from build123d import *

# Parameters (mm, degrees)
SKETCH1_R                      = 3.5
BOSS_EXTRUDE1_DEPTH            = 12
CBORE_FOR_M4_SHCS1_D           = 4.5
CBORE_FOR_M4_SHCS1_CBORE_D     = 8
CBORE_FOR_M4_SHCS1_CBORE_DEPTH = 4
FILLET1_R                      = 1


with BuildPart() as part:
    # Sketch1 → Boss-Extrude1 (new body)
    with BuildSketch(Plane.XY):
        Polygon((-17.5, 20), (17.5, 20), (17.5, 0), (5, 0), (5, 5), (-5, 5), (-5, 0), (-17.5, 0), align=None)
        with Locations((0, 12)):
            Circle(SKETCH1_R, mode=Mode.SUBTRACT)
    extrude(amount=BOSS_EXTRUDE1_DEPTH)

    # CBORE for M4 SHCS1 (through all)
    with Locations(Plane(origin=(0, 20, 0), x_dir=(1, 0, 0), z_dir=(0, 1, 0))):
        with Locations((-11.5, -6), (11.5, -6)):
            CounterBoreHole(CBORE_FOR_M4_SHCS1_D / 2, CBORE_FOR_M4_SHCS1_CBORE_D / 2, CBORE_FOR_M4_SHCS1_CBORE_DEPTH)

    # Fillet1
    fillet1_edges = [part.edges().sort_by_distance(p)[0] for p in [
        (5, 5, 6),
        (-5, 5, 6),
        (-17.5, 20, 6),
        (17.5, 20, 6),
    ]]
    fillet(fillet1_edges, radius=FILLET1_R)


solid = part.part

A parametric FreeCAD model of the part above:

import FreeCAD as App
import Part
import Sketcher

V = App.Vector
Q = App.Units.Quantity


def edges_at(feature, points):
    """Names of the edges that pass closest to the given points."""
    edges = feature.Shape.Edges
    near = lambda p: min(range(len(edges)), key=lambda i: edges[i].distToShape(Part.Vertex(*p))[0])
    return sorted({f"Edge{near(p) + 1}" for p in points})

doc = App.newDocument("Part")
params = doc.addObject("Spreadsheet::Sheet", "Params")
for row, (alias, value) in enumerate([
    ("sketch1_diameter", "7 mm"),
    ("sketch1_width", "35 mm"),
    ("sketch1_width2", "10 mm"),
    ("sketch1_height", "20 mm"),
    ("sketch1_height2", "5 mm"),
    ("pad1_length", "12 mm"),
    ("sketch2_diameter", "4.5 mm"),
    ("hole_diameter", "4.5 mm"),
    ("hole_cbore_diameter", "8 mm"),
    ("hole_cbore_depth", "4 mm"),
    ("fillet_radius", "1 mm"),
], start=1):
    params.set(f"A{row}", alias)
    params.set(f"B{row}", "=" + value)
    params.setAlias(f"B{row}", alias)

body = doc.addObject("PartDesign::Body", "Body")

sketch1 = doc.addObject("Sketcher::SketchObject", "Sketch")
body.addObject(sketch1)
sketch1.AttachmentSupport = (doc.XY_Plane, [""])
sketch1.MapMode = "FlatFace"
sketch1.addGeometry(Part.LineSegment(V(17.5, 20, 0), V(-17.5, 20, 0)), False)
sketch1.addGeometry(Part.LineSegment(V(-17.5, 20, 0), V(-17.5, 0, 0)), False)
sketch1.addGeometry(Part.LineSegment(V(-17.5, 0, 0), V(-5, 0, 0)), False)
sketch1.addGeometry(Part.LineSegment(V(-5, 0, 0), V(-5, 5, 0)), False)
sketch1.addGeometry(Part.LineSegment(V(-5, 5, 0), V(5, 5, 0)), False)
sketch1.addGeometry(Part.LineSegment(V(5, 5, 0), V(5, 0, 0)), False)
sketch1.addGeometry(Part.LineSegment(V(5, 0, 0), V(17.5, 0, 0)), False)
sketch1.addGeometry(Part.LineSegment(V(17.5, 0, 0), V(17.5, 20, 0)), False)
sketch1.addGeometry(Part.Circle(V(0, 12, 0), V(0, 0, 1), 3.5), False)
sketch1.addConstraint(Sketcher.Constraint("Coincident", 0, 2, 1, 1))
sketch1.addConstraint(Sketcher.Constraint("Coincident", 1, 2, 2, 1))
sketch1.addConstraint(Sketcher.Constraint("Coincident", 2, 2, 3, 1))
sketch1.addConstraint(Sketcher.Constraint("Coincident", 3, 2, 4, 1))
sketch1.addConstraint(Sketcher.Constraint("Coincident", 4, 2, 5, 1))
sketch1.addConstraint(Sketcher.Constraint("Coincident", 5, 2, 6, 1))
sketch1.addConstraint(Sketcher.Constraint("Coincident", 6, 2, 7, 1))
sketch1.addConstraint(Sketcher.Constraint("Coincident", 7, 2, 0, 1))
sketch1.addConstraint(Sketcher.Constraint("Horizontal", 0))
sketch1.addConstraint(Sketcher.Constraint("Vertical", 1))
sketch1.addConstraint(Sketcher.Constraint("Horizontal", 2))
sketch1.addConstraint(Sketcher.Constraint("Vertical", 3))
sketch1.addConstraint(Sketcher.Constraint("Horizontal", 4))
sketch1.addConstraint(Sketcher.Constraint("Vertical", 5))
sketch1.addConstraint(Sketcher.Constraint("Horizontal", 6))
sketch1.addConstraint(Sketcher.Constraint("Vertical", 7))
sketch1.addConstraint(Sketcher.Constraint("Symmetric", 2, 2, 5, 2, -1, 1))
sketch1.addConstraint(Sketcher.Constraint("Symmetric", 1, 2, 6, 2, -2))
sketch1.addConstraint(Sketcher.Constraint("PointOnObject", 8, 3, -2))
sketch1.addConstraint(Sketcher.Constraint("Diameter", 8, Q("7 mm")))
sketch1.addConstraint(Sketcher.Constraint("DistanceX", 0, 2, 0, 1, Q("35 mm")))
sketch1.addConstraint(Sketcher.Constraint("DistanceX", 4, 1, 4, 2, Q("10 mm")))
sketch1.addConstraint(Sketcher.Constraint("DistanceY", 1, 2, 1, 1, Q("20 mm")))
sketch1.addConstraint(Sketcher.Constraint("DistanceY", 3, 1, 3, 2, Q("5 mm")))
sketch1.addConstraint(Sketcher.Constraint("DistanceY", -1, 1, 8, 3, Q("12 mm")))
sketch1.setExpression("Constraints[19]", "Params.sketch1_diameter")
sketch1.setExpression("Constraints[20]", "Params.sketch1_width")
sketch1.setExpression("Constraints[21]", "Params.sketch1_width2")
sketch1.setExpression("Constraints[22]", "Params.sketch1_height")
sketch1.setExpression("Constraints[23]", "Params.sketch1_height2")
pad1 = doc.addObject("PartDesign::Pad", "Pad")
body.addObject(pad1)
pad1.Profile = sketch1
pad1.setExpression("Length", "Params.pad1_length")

sketch2 = doc.addObject("Sketcher::SketchObject", "Sketch001")
body.addObject(sketch2)
sketch2.AttachmentSupport = (doc.XZ_Plane, [""])
sketch2.MapMode = "FlatFace"
sketch2.AttachmentOffset = App.Placement(V(0, 0, -20), App.Rotation())
sketch2.addGeometry(Part.Circle(V(-11.5, 6, 0), V(0, 0, 1), 2.2), False)
sketch2.addGeometry(Part.Circle(V(11.5, 6, 0), V(0, 0, 1), 2.2), False)
sketch2.addConstraint(Sketcher.Constraint("Equal", 0, 1))
sketch2.addConstraint(Sketcher.Constraint("Symmetric", 0, 3, 1, 3, -2))
sketch2.addConstraint(Sketcher.Constraint("Diameter", 0, Q("4.5 mm")))
sketch2.addConstraint(Sketcher.Constraint("DistanceY", -1, 1, 0, 3, Q("6 mm")))
sketch2.addConstraint(Sketcher.Constraint("DistanceX", 0, 3, 1, 3, Q("23 mm")))
sketch2.setExpression("Constraints[2]", "Params.sketch2_diameter")
doc.recompute()
hole = doc.addObject("PartDesign::Hole", "Hole")
body.addObject(hole)
hole.Profile = sketch2
hole.ThreadType = "None"
hole.setExpression("Diameter", "Params.hole_diameter")
hole.DepthType = "ThroughAll"
hole.HoleCutType = "Counterbore"
hole.setExpression("HoleCutDiameter", "Params.hole_cbore_diameter")
hole.setExpression("HoleCutDepth", "Params.hole_cbore_depth")
hole.Reversed = True
doc.recompute()

fillet = doc.addObject("PartDesign::Fillet", "Fillet")
body.addObject(fillet)
fillet.Base = (hole, edges_at(hole, [
    (5, 5, 6),
    (-5, 5, 6),
    (-17.5, 20, 6),
    (17.5, 20, 6),
]))
fillet.setExpression("Radius", "Params.fillet_radius")

doc.recompute()
